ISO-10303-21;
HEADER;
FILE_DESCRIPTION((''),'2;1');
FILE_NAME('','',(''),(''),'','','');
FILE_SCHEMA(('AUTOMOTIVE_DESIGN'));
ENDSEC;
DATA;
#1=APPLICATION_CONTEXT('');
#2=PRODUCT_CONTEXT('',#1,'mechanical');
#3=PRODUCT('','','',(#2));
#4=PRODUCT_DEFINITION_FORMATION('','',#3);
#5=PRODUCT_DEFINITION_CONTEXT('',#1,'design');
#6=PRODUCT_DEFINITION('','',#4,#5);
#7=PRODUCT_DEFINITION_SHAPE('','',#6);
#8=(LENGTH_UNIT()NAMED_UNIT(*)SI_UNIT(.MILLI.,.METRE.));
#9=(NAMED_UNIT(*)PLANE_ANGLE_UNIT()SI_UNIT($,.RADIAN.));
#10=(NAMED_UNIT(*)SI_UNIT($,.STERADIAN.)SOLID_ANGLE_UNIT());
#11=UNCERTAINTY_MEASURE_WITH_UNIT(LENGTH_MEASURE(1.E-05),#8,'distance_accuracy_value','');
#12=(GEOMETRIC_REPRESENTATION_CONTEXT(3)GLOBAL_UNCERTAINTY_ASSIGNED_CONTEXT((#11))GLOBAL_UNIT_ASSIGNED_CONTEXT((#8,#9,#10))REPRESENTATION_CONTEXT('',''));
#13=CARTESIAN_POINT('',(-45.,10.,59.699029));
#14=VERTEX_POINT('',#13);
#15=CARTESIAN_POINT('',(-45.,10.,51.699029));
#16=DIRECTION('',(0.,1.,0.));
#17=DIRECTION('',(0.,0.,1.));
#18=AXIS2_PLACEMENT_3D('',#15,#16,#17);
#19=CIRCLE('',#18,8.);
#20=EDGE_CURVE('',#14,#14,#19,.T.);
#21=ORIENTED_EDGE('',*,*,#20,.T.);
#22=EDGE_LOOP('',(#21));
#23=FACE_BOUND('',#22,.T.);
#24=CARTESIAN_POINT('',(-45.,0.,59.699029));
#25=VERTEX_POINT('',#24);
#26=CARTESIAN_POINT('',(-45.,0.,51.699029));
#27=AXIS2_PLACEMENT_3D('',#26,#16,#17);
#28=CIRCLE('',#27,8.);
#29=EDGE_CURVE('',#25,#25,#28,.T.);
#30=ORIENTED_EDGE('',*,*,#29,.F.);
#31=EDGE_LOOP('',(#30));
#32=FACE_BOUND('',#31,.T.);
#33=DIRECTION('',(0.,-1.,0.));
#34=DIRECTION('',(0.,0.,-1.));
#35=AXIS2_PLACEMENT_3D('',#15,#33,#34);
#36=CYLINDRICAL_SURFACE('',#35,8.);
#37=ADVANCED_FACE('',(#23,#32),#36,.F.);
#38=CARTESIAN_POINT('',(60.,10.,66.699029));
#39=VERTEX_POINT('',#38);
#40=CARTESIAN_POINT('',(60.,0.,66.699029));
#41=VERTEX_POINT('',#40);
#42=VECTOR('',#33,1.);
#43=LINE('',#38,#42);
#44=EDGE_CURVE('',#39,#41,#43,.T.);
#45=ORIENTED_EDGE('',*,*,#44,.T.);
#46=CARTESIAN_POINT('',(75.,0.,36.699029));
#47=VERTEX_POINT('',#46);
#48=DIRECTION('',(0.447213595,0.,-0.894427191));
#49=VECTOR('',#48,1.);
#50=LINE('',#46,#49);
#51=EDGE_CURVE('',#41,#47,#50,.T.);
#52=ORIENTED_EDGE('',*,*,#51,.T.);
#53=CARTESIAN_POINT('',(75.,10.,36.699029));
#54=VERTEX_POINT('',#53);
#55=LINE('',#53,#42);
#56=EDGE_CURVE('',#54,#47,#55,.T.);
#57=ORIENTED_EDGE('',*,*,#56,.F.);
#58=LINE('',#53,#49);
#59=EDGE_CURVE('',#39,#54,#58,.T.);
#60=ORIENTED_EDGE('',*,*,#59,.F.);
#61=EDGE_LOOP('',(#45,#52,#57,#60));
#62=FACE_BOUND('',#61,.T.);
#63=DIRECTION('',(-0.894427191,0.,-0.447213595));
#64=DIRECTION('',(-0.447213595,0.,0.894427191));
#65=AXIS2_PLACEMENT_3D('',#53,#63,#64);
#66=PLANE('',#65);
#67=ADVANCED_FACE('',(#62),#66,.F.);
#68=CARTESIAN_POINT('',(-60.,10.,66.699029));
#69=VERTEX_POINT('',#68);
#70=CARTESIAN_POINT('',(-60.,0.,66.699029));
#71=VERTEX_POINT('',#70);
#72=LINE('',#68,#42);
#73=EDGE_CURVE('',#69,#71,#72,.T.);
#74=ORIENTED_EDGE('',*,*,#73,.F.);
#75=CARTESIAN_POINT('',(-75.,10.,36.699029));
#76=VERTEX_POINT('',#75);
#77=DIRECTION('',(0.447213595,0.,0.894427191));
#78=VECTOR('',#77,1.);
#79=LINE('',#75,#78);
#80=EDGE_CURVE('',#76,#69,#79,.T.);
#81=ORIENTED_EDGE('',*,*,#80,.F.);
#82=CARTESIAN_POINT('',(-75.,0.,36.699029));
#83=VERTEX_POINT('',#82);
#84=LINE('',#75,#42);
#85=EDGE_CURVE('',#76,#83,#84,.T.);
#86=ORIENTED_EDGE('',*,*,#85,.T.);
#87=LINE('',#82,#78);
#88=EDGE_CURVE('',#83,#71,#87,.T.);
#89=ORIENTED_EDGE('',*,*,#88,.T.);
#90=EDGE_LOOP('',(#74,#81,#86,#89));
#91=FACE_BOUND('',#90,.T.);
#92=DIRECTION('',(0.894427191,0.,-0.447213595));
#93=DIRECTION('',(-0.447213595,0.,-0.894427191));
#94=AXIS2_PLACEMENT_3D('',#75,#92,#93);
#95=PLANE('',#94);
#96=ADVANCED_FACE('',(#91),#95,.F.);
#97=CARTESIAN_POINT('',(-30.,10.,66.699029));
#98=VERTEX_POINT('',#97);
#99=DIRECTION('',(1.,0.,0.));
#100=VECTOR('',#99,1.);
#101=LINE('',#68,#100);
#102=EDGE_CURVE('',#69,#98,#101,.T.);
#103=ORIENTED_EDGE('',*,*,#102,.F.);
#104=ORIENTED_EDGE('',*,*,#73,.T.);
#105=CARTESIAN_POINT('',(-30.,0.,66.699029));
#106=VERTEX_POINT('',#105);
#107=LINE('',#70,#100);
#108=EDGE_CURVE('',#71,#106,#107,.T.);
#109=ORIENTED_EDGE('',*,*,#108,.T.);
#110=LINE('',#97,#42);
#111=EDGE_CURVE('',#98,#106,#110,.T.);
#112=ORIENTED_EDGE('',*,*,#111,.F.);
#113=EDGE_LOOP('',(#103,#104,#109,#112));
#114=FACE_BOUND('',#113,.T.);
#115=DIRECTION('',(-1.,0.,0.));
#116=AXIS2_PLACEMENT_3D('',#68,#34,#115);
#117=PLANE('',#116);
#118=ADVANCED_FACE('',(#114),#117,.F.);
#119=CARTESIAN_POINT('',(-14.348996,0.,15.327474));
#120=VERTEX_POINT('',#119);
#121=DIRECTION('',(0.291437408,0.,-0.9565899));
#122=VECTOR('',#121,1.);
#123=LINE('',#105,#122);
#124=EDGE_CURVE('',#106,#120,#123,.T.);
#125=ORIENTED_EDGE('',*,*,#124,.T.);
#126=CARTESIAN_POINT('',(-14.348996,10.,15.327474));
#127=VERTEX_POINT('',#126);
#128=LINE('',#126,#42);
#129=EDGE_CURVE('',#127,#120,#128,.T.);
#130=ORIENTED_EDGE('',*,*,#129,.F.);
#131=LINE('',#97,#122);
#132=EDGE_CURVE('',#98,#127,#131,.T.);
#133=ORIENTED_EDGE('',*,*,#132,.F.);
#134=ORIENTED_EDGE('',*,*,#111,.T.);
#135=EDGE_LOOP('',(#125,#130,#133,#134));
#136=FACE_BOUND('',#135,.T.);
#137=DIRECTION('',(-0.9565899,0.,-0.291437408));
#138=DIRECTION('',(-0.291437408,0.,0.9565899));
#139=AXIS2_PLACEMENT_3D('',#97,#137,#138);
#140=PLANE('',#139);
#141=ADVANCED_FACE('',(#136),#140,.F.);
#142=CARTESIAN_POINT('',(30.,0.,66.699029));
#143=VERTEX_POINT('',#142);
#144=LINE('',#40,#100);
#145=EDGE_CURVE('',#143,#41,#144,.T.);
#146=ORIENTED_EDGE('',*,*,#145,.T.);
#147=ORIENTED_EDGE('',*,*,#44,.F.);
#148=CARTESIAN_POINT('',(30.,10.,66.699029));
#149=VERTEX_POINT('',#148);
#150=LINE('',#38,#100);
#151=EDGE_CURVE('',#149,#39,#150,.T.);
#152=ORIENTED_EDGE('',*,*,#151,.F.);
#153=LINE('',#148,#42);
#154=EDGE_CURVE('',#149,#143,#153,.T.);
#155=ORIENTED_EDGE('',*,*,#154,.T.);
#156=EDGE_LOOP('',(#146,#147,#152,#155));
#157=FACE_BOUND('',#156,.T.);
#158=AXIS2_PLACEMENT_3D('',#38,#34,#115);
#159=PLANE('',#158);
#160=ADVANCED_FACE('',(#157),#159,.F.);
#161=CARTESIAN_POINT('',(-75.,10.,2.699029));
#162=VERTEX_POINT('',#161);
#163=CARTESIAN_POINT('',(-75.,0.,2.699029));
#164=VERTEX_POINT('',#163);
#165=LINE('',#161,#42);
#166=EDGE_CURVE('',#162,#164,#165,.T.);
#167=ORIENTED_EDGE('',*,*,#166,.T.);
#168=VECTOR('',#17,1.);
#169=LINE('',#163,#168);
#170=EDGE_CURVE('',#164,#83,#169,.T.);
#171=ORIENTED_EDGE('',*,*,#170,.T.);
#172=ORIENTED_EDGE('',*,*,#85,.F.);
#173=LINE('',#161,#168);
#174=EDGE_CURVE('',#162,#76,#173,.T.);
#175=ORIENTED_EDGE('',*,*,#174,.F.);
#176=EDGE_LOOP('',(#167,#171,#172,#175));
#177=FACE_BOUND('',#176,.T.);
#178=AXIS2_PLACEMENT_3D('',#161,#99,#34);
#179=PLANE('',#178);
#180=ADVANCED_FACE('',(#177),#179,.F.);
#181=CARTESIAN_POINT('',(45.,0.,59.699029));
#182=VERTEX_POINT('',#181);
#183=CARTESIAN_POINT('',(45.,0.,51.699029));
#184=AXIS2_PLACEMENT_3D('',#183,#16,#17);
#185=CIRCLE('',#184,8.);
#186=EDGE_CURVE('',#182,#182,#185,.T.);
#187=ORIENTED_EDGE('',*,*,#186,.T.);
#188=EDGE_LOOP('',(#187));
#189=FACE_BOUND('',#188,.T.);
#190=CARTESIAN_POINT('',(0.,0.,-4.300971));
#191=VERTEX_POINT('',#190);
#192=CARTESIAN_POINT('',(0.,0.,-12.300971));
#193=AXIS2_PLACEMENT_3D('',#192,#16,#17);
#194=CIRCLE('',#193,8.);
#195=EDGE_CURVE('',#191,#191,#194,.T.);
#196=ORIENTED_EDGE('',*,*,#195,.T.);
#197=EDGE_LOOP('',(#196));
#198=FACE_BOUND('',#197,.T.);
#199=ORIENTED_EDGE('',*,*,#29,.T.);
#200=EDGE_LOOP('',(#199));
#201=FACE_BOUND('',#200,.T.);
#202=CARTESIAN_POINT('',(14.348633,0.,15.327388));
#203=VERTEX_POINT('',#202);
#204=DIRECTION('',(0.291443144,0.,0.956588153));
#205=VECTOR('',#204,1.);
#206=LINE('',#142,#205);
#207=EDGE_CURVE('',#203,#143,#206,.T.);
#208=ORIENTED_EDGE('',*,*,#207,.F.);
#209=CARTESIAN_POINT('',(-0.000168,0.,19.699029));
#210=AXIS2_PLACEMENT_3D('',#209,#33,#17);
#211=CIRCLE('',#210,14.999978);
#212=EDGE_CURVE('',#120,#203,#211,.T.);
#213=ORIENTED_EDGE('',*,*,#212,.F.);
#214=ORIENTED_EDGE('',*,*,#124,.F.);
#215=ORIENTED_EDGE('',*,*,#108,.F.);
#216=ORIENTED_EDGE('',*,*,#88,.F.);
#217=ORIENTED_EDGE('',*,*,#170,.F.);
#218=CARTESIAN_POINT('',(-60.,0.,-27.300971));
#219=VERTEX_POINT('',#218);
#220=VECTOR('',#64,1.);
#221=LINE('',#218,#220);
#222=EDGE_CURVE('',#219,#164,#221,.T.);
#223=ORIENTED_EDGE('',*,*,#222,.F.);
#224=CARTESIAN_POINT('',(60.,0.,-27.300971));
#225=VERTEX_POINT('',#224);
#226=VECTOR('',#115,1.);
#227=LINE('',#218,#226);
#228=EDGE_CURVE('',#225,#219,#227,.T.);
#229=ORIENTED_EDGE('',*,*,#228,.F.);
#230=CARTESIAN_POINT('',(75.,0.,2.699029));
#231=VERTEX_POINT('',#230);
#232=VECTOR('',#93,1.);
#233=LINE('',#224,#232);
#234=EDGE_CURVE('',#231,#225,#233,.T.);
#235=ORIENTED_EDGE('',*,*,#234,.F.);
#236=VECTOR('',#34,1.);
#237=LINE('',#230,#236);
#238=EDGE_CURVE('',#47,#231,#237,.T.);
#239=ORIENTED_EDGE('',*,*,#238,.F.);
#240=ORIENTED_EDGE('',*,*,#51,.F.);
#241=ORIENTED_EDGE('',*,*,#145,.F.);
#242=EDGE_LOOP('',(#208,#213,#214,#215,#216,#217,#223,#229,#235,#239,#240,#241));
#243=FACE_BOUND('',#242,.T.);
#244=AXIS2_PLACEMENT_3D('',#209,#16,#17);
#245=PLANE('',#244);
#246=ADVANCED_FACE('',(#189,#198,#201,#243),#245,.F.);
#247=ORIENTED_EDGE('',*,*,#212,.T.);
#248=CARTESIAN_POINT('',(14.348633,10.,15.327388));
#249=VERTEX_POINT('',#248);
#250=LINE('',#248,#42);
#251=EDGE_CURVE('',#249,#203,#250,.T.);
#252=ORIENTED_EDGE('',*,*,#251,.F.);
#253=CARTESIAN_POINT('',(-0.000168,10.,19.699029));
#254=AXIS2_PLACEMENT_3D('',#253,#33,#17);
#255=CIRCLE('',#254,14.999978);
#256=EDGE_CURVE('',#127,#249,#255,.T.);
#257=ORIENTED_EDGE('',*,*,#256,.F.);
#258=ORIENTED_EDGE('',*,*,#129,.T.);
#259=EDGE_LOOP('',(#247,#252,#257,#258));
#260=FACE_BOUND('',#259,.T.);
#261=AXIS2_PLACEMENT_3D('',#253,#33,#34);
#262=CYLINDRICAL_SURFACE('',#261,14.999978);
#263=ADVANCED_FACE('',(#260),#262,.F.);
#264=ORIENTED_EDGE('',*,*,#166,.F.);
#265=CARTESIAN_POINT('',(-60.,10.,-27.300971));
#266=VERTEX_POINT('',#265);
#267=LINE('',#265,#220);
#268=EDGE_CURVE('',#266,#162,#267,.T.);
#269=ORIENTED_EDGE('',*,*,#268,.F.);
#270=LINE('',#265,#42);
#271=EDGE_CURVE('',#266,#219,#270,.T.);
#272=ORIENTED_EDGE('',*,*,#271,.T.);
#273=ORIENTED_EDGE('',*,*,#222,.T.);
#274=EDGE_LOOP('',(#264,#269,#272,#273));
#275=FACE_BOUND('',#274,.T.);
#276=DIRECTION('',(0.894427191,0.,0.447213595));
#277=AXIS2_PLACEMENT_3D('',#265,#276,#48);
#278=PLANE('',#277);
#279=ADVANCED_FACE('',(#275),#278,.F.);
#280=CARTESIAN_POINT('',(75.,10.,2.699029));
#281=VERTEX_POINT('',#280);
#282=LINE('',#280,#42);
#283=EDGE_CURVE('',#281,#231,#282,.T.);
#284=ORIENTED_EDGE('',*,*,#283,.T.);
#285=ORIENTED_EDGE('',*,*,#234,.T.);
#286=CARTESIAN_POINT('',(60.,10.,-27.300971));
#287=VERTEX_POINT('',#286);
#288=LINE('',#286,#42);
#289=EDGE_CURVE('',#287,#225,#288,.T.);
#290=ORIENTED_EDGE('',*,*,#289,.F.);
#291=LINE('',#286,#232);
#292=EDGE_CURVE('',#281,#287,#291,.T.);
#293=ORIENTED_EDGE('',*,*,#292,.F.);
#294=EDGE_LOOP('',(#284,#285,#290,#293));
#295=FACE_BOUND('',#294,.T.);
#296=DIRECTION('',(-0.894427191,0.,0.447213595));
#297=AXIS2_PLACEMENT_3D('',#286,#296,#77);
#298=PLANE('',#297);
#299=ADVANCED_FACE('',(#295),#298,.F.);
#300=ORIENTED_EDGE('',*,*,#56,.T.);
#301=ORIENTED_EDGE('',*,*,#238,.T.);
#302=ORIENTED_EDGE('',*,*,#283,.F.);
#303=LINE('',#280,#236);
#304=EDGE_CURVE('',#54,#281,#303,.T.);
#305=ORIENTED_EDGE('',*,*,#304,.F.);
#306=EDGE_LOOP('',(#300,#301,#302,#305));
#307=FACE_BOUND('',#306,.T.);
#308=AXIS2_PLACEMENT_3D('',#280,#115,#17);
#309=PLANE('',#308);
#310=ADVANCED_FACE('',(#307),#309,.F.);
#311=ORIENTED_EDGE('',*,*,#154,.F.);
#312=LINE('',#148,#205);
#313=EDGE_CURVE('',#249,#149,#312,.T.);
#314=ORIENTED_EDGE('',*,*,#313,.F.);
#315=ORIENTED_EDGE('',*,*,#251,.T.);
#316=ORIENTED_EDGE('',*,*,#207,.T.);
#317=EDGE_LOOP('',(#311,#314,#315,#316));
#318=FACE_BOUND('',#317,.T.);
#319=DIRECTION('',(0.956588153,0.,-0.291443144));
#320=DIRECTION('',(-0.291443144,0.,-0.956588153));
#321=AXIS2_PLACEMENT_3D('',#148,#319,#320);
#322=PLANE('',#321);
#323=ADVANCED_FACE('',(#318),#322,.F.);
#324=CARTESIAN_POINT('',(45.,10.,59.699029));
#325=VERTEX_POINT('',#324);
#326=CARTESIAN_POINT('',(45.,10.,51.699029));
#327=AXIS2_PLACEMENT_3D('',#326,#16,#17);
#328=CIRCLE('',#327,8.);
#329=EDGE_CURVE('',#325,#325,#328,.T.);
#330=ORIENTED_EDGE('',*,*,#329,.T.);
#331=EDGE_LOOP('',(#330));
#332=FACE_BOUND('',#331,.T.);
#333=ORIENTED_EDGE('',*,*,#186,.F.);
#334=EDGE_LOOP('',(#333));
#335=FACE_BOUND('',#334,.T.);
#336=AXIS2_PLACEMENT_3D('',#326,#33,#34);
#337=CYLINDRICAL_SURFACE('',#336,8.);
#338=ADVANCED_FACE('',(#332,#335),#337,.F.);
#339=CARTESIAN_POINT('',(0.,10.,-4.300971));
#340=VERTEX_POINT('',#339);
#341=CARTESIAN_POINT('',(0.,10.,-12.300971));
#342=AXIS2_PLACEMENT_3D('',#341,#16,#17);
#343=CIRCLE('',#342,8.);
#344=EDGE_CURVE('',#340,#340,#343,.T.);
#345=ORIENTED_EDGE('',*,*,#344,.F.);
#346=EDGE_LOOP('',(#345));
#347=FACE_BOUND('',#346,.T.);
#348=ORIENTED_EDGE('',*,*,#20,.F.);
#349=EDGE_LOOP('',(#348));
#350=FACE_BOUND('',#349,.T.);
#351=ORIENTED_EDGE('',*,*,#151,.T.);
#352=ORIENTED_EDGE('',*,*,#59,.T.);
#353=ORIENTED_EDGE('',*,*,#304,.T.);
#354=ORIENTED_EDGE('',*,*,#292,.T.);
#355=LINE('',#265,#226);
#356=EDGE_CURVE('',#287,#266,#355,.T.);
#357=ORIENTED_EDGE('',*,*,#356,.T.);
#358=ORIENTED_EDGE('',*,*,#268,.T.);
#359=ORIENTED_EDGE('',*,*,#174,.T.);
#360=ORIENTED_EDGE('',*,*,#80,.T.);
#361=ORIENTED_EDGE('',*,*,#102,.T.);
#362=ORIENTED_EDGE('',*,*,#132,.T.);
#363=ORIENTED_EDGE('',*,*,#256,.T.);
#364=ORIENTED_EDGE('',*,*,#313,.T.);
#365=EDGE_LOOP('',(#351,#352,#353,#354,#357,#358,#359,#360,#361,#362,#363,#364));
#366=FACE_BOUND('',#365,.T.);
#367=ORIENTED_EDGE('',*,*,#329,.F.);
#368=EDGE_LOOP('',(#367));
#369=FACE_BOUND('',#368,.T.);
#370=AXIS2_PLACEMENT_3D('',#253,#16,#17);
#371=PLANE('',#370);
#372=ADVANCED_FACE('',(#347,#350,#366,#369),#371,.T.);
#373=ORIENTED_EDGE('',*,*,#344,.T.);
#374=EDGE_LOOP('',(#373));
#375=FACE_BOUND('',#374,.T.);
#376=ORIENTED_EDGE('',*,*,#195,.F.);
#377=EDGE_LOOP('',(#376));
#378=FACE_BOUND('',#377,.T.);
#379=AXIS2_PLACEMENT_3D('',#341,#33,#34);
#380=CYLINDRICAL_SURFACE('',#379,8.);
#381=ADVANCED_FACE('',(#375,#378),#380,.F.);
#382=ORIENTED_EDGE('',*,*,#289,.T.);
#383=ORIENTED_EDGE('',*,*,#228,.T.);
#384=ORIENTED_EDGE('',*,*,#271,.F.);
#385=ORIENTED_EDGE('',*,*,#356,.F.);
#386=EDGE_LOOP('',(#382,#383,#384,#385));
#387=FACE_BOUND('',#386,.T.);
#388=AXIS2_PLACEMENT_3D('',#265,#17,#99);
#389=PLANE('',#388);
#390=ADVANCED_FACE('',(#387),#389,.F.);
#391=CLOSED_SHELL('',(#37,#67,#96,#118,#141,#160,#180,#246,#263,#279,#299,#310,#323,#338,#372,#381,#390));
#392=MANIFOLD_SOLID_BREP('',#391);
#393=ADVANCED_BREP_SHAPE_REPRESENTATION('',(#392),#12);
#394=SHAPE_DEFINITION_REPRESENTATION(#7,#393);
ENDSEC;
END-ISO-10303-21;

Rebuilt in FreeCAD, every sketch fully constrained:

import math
import FreeCAD as App
import Part
import Sketcher
Q = App.Units.Quantity

doc = App.newDocument("Part")
body = doc.addObject("PartDesign::Body", "Body")

sketch1 = doc.addObject("Sketcher::SketchObject", "Sketch")
body.addObject(sketch1)
sketch1.AttachmentSupport = (doc.XZ_Plane, [""])
sketch1.MapMode = "FlatFace"
sketch1.addGeometry([
    Part.LineSegment(App.Vector(60, -27, 0), App.Vector(-60, -27, 0)),
    Part.LineSegment(App.Vector(-60, -27, 0), App.Vector(-75, 3, 0)),
    Part.LineSegment(App.Vector(-75, 3, 0), App.Vector(-75, 37, 0)),
    Part.LineSegment(App.Vector(-75, 37, 0), App.Vector(-60, 67, 0)),
    Part.LineSegment(App.Vector(-60, 67, 0), App.Vector(-30, 67, 0)),
    Part.LineSegment(App.Vector(-30, 67, 0), App.Vector(-14, 15, 0)),
    Part.ArcOfCircle(Part.Circle(App.Vector(0, 20, 0), App.Vector(0, 0, 1), 15), math.radians(-163), math.radians(-17)),
    Part.LineSegment(App.Vector(14, 15, 0), App.Vector(30, 67, 0)),
    Part.LineSegment(App.Vector(30, 67, 0), App.Vector(60, 67, 0)),
    Part.LineSegment(App.Vector(60, 67, 0), App.Vector(75, 37, 0)),
    Part.LineSegment(App.Vector(75, 37, 0), App.Vector(75, 3, 0)),
    Part.LineSegment(App.Vector(75, 3, 0), App.Vector(60, -27, 0)),
    Part.Circle(App.Vector(45, 52, 0), App.Vector(0, 0, 1), 8),
    Part.Circle(App.Vector(-45, 52, 0), App.Vector(0, 0, 1), 8),
    Part.Circle(App.Vector(0, -12, 0), App.Vector(0, 0, 1), 8),
], False)
sketch1.addConstraint([
    Sketcher.Constraint("Coincident", 0, 2, 1, 1),
    Sketcher.Constraint("Coincident", 1, 2, 2, 1),
    Sketcher.Constraint("Coincident", 2, 2, 3, 1),
    Sketcher.Constraint("Coincident", 3, 2, 4, 1),
    Sketcher.Constraint("Coincident", 4, 2, 5, 1),
    Sketcher.Constraint("Tangent", 5, 2, 6, 1),
    Sketcher.Constraint("Tangent", 6, 2, 7, 1),
    Sketcher.Constraint("Coincident", 7, 2, 8, 1),
    Sketcher.Constraint("Coincident", 8, 2, 9, 1),
    Sketcher.Constraint("Coincident", 9, 2, 10, 1),
    Sketcher.Constraint("Coincident", 10, 2, 11, 1),
    Sketcher.Constraint("Coincident", 11, 2, 0, 1),
    Sketcher.Constraint("Horizontal", 0),
    Sketcher.Constraint("Vertical", 2),
    Sketcher.Constraint("Horizontal", 4),
    Sketcher.Constraint("Horizontal", 8),
    Sketcher.Constraint("Vertical", 10),
    Sketcher.Constraint("Equal", 12, 13),
    Sketcher.Constraint("Equal", 13, 14),
    Sketcher.Constraint("Symmetric", 12, 3, 13, 3, -2),
    Sketcher.Constraint("Symmetric", 4, 2, 7, 2, -2),
    Sketcher.Constraint("Symmetric", 2, 2, 9, 2, -2),
    Sketcher.Constraint("PointOnObject", 14, 3, -2),
    Sketcher.Constraint("Parallel", 1, 9),
    Sketcher.Constraint("Parallel", 3, 11),
    Sketcher.Constraint("Horizontal", 1, 2, 10, 2),
    Sketcher.Constraint("Vertical", 0, 2, 3, 2),
    Sketcher.Constraint("Vertical", 8, 2, 11, 2),
    Sketcher.Constraint("Diameter", 12, Q("16 mm")),
    Sketcher.Constraint("DistanceX", 0, 2, 0, 1, Q("120 mm")),
    Sketcher.Constraint("DistanceX", 4, 1, 4, 2, Q("30 mm")),
    Sketcher.Constraint("DistanceY", 2, 1, 2, 2, Q("34 mm")),
    Sketcher.Constraint("DistanceX", -1, 1, 12, 3, Q("45 mm")),
    Sketcher.Constraint("DistanceX", 1, 2, -1, 1, Q("75 mm")),
    Sketcher.Constraint("DistanceY", 6, 3, 12, 3, Q("32 mm")),
    Sketcher.Constraint("DistanceY", 14, 3, 6, 3, Q("32 mm")),
    Sketcher.Constraint("DistanceY", 0, 2, 14, 3, Q("15 mm")),
    Sketcher.Constraint("DistanceY", 0, 2, 1, 2, Q("30 mm")),
    Sketcher.Constraint("Radius", 6, Q("14.999978 mm")),
    Sketcher.Constraint("Distance", 5, Q("53.702799 mm")),
    Sketcher.Constraint("DistanceY", -1, 1, 6, 3, Q("19.699029 mm")),
])
pad1 = doc.addObject("PartDesign::Pad", "Pad")
body.addObject(pad1)
pad1.Profile = sketch1
pad1.Length = 10
pad1.Reversed = True

doc.recompute()
